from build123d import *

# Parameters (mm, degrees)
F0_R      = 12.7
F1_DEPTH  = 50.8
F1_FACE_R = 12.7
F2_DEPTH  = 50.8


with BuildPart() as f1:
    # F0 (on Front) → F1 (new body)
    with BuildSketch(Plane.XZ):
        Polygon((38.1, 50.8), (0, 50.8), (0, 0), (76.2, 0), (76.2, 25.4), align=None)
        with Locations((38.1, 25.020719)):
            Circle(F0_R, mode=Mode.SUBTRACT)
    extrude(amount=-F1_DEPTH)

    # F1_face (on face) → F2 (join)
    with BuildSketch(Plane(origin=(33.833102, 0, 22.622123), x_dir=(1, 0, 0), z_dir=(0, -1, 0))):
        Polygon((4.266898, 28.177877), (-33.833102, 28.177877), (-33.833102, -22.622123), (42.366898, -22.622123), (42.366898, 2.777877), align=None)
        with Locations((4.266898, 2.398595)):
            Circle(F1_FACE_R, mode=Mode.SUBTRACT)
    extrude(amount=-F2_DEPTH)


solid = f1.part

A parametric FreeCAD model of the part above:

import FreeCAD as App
import Part
import Sketcher

V = App.Vector
Q = App.Units.Quantity

doc = App.newDocument("Part")
params = doc.addObject("Spreadsheet::Sheet", "Params")
for row, (alias, value) in enumerate([
    ("sketch1_diameter", "1 in"),
    ("sketch1_width", "3 in"),
    ("sketch1_height", "2 in"),
    ("sketch1_height2", "1 in"),
    ("sketch1_width2", "1.5 in"),
    ("pad1_length", "2 in"),
    ("sketch2_diameter", "1 in"),
    ("sketch2_width", "3 in"),
    ("sketch2_height", "2 in"),
    ("sketch2_height2", "1 in"),
    ("sketch2_width2", "1.5 in"),
    ("pad2_length", "2 in"),
], start=1):
    params.set(f"A{row}", alias)
    params.set(f"B{row}", "=" + value)
    params.setAlias(f"B{row}", alias)

body = doc.addObject("PartDesign::Body", "Body")

# Sketch on XZ plane
sketch1 = body.newObject("Sketcher::SketchObject", "Sketch")
sketch1.AttachmentSupport = (doc.getObject("XZ_Plane"), [""])
sketch1.MapMode = "FlatFace"
sketch1.addGeometry([
    Part.LineSegment(V(38, 51, 0), V(0, 51, 0)),  # 0
    Part.LineSegment(V(0, 51, 0), V(0, 0, 0)),  # 1
    Part.LineSegment(V(0, 0, 0), V(76, 0, 0)),  # 2
    Part.LineSegment(V(76, 0, 0), V(76, 25, 0)),  # 3
    Part.LineSegment(V(76, 25, 0), V(38, 51, 0)),  # 4
    Part.Circle(V(38, 25, 0), V(0, 0, 1), 13),  # 5
], False)
sketch1.addConstraint([
    Sketcher.Constraint("Coincident", 0, 2, 1, 1),
    Sketcher.Constraint("Coincident", 1, 2, 2, 1),
    Sketcher.Constraint("Coincident", 2, 2, 3, 1),
    Sketcher.Constraint("Coincident", 3, 2, 4, 1),
    Sketcher.Constraint("Coincident", 4, 2, 0, 1),
    Sketcher.Constraint("Horizontal", 0),
    Sketcher.Constraint("Vertical", 1),
    Sketcher.Constraint("Horizontal", 2),
    Sketcher.Constraint("Vertical", 3),
    Sketcher.Constraint("Coincident", 1, 2, -1, 1),
    Sketcher.Constraint("Vertical", 5, 3, 4, 2),
    Sketcher.Constraint("Diameter", 5, Q("1 in")),
    Sketcher.Constraint("DistanceX", 2, 1, 2, 2, Q("3 in")),
    Sketcher.Constraint("DistanceY", 1, 2, 1, 1, Q("2 in")),
    Sketcher.Constraint("DistanceY", 3, 1, 3, 2, Q("1 in")),
    Sketcher.Constraint("DistanceX", 0, 2, 0, 1, Q("1.5 in")),
    Sketcher.Constraint("DistanceY", -1, 1, 5, 3, Q("25.020719 mm")),
])
sketch1.setExpression("Constraints[11]", "Params.sketch1_diameter")
sketch1.setExpression("Constraints[12]", "Params.sketch1_width")
sketch1.setExpression("Constraints[13]", "Params.sketch1_height")
sketch1.setExpression("Constraints[14]", "Params.sketch1_height2")
sketch1.setExpression("Constraints[15]", "Params.sketch1_width2")
pad1 = body.newObject("PartDesign::Pad", "Pad")
pad1.Profile = sketch1
pad1.setExpression("Length", "Params.pad1_length")
pad1.Reversed = True

# Sketch on XZ plane
sketch2 = body.newObject("Sketcher::SketchObject", "Sketch001")
sketch2.AttachmentSupport = (doc.getObject("XZ_Plane"), [""])
sketch2.MapMode = "FlatFace"
sketch2.addGeometry([
    Part.LineSegment(V(38, 51, 0), V(0, 51, 0)),  # 0
    Part.LineSegment(V(0, 51, 0), V(0, 0, 0)),  # 1
    Part.LineSegment(V(0, 0, 0), V(76, 0, 0)),  # 2
    Part.LineSegment(V(76, 0, 0), V(76, 25, 0)),  # 3
    Part.LineSegment(V(76, 25, 0), V(38, 51, 0)),  # 4
    Part.Circle(V(38, 25, 0), V(0, 0, 1), 13),  # 5
], False)
sketch2.addConstraint([
    Sketcher.Constraint("Coincident", 0, 2, 1, 1),
    Sketcher.Constraint("Coincident", 1, 2, 2, 1),
    Sketcher.Constraint("Coincident", 2, 2, 3, 1),
    Sketcher.Constraint("Coincident", 3, 2, 4, 1),
    Sketcher.Constraint("Coincident", 4, 2, 0, 1),
    Sketcher.Constraint("Horizontal", 0),
    Sketcher.Constraint("Vertical", 1),
    Sketcher.Constraint("Horizontal", 2),
    Sketcher.Constraint("Vertical", 3),
    Sketcher.Constraint("Coincident", 1, 2, -1, 1),
    Sketcher.Constraint("Vertical", 5, 3, 4, 2),
    Sketcher.Constraint("Diameter", 5, Q("1 in")),
    Sketcher.Constraint("DistanceX", 2, 1, 2, 2, Q("3 in")),
    Sketcher.Constraint("DistanceY", 1, 2, 1, 1, Q("2 in")),
    Sketcher.Constraint("DistanceY", 3, 1, 3, 2, Q("1 in")),
    Sketcher.Constraint("DistanceX", 0, 2, 0, 1, Q("1.5 in")),
    Sketcher.Constraint("DistanceY", 5, 3, 0, 2, Q("25.779282 mm")),
])
sketch2.setExpression("Constraints[11]", "Params.sketch2_diameter")
sketch2.setExpression("Constraints[12]", "Params.sketch2_width")
sketch2.setExpression("Constraints[13]", "Params.sketch2_height")
sketch2.setExpression("Constraints[14]", "Params.sketch2_height2")
sketch2.setExpression("Constraints[15]", "Params.sketch2_width2")
pad2 = body.newObject("PartDesign::Pad", "Pad001")
pad2.Profile = sketch2
pad2.setExpression("Length", "Params.pad2_length")
pad2.Reversed = True

doc.recompute()
